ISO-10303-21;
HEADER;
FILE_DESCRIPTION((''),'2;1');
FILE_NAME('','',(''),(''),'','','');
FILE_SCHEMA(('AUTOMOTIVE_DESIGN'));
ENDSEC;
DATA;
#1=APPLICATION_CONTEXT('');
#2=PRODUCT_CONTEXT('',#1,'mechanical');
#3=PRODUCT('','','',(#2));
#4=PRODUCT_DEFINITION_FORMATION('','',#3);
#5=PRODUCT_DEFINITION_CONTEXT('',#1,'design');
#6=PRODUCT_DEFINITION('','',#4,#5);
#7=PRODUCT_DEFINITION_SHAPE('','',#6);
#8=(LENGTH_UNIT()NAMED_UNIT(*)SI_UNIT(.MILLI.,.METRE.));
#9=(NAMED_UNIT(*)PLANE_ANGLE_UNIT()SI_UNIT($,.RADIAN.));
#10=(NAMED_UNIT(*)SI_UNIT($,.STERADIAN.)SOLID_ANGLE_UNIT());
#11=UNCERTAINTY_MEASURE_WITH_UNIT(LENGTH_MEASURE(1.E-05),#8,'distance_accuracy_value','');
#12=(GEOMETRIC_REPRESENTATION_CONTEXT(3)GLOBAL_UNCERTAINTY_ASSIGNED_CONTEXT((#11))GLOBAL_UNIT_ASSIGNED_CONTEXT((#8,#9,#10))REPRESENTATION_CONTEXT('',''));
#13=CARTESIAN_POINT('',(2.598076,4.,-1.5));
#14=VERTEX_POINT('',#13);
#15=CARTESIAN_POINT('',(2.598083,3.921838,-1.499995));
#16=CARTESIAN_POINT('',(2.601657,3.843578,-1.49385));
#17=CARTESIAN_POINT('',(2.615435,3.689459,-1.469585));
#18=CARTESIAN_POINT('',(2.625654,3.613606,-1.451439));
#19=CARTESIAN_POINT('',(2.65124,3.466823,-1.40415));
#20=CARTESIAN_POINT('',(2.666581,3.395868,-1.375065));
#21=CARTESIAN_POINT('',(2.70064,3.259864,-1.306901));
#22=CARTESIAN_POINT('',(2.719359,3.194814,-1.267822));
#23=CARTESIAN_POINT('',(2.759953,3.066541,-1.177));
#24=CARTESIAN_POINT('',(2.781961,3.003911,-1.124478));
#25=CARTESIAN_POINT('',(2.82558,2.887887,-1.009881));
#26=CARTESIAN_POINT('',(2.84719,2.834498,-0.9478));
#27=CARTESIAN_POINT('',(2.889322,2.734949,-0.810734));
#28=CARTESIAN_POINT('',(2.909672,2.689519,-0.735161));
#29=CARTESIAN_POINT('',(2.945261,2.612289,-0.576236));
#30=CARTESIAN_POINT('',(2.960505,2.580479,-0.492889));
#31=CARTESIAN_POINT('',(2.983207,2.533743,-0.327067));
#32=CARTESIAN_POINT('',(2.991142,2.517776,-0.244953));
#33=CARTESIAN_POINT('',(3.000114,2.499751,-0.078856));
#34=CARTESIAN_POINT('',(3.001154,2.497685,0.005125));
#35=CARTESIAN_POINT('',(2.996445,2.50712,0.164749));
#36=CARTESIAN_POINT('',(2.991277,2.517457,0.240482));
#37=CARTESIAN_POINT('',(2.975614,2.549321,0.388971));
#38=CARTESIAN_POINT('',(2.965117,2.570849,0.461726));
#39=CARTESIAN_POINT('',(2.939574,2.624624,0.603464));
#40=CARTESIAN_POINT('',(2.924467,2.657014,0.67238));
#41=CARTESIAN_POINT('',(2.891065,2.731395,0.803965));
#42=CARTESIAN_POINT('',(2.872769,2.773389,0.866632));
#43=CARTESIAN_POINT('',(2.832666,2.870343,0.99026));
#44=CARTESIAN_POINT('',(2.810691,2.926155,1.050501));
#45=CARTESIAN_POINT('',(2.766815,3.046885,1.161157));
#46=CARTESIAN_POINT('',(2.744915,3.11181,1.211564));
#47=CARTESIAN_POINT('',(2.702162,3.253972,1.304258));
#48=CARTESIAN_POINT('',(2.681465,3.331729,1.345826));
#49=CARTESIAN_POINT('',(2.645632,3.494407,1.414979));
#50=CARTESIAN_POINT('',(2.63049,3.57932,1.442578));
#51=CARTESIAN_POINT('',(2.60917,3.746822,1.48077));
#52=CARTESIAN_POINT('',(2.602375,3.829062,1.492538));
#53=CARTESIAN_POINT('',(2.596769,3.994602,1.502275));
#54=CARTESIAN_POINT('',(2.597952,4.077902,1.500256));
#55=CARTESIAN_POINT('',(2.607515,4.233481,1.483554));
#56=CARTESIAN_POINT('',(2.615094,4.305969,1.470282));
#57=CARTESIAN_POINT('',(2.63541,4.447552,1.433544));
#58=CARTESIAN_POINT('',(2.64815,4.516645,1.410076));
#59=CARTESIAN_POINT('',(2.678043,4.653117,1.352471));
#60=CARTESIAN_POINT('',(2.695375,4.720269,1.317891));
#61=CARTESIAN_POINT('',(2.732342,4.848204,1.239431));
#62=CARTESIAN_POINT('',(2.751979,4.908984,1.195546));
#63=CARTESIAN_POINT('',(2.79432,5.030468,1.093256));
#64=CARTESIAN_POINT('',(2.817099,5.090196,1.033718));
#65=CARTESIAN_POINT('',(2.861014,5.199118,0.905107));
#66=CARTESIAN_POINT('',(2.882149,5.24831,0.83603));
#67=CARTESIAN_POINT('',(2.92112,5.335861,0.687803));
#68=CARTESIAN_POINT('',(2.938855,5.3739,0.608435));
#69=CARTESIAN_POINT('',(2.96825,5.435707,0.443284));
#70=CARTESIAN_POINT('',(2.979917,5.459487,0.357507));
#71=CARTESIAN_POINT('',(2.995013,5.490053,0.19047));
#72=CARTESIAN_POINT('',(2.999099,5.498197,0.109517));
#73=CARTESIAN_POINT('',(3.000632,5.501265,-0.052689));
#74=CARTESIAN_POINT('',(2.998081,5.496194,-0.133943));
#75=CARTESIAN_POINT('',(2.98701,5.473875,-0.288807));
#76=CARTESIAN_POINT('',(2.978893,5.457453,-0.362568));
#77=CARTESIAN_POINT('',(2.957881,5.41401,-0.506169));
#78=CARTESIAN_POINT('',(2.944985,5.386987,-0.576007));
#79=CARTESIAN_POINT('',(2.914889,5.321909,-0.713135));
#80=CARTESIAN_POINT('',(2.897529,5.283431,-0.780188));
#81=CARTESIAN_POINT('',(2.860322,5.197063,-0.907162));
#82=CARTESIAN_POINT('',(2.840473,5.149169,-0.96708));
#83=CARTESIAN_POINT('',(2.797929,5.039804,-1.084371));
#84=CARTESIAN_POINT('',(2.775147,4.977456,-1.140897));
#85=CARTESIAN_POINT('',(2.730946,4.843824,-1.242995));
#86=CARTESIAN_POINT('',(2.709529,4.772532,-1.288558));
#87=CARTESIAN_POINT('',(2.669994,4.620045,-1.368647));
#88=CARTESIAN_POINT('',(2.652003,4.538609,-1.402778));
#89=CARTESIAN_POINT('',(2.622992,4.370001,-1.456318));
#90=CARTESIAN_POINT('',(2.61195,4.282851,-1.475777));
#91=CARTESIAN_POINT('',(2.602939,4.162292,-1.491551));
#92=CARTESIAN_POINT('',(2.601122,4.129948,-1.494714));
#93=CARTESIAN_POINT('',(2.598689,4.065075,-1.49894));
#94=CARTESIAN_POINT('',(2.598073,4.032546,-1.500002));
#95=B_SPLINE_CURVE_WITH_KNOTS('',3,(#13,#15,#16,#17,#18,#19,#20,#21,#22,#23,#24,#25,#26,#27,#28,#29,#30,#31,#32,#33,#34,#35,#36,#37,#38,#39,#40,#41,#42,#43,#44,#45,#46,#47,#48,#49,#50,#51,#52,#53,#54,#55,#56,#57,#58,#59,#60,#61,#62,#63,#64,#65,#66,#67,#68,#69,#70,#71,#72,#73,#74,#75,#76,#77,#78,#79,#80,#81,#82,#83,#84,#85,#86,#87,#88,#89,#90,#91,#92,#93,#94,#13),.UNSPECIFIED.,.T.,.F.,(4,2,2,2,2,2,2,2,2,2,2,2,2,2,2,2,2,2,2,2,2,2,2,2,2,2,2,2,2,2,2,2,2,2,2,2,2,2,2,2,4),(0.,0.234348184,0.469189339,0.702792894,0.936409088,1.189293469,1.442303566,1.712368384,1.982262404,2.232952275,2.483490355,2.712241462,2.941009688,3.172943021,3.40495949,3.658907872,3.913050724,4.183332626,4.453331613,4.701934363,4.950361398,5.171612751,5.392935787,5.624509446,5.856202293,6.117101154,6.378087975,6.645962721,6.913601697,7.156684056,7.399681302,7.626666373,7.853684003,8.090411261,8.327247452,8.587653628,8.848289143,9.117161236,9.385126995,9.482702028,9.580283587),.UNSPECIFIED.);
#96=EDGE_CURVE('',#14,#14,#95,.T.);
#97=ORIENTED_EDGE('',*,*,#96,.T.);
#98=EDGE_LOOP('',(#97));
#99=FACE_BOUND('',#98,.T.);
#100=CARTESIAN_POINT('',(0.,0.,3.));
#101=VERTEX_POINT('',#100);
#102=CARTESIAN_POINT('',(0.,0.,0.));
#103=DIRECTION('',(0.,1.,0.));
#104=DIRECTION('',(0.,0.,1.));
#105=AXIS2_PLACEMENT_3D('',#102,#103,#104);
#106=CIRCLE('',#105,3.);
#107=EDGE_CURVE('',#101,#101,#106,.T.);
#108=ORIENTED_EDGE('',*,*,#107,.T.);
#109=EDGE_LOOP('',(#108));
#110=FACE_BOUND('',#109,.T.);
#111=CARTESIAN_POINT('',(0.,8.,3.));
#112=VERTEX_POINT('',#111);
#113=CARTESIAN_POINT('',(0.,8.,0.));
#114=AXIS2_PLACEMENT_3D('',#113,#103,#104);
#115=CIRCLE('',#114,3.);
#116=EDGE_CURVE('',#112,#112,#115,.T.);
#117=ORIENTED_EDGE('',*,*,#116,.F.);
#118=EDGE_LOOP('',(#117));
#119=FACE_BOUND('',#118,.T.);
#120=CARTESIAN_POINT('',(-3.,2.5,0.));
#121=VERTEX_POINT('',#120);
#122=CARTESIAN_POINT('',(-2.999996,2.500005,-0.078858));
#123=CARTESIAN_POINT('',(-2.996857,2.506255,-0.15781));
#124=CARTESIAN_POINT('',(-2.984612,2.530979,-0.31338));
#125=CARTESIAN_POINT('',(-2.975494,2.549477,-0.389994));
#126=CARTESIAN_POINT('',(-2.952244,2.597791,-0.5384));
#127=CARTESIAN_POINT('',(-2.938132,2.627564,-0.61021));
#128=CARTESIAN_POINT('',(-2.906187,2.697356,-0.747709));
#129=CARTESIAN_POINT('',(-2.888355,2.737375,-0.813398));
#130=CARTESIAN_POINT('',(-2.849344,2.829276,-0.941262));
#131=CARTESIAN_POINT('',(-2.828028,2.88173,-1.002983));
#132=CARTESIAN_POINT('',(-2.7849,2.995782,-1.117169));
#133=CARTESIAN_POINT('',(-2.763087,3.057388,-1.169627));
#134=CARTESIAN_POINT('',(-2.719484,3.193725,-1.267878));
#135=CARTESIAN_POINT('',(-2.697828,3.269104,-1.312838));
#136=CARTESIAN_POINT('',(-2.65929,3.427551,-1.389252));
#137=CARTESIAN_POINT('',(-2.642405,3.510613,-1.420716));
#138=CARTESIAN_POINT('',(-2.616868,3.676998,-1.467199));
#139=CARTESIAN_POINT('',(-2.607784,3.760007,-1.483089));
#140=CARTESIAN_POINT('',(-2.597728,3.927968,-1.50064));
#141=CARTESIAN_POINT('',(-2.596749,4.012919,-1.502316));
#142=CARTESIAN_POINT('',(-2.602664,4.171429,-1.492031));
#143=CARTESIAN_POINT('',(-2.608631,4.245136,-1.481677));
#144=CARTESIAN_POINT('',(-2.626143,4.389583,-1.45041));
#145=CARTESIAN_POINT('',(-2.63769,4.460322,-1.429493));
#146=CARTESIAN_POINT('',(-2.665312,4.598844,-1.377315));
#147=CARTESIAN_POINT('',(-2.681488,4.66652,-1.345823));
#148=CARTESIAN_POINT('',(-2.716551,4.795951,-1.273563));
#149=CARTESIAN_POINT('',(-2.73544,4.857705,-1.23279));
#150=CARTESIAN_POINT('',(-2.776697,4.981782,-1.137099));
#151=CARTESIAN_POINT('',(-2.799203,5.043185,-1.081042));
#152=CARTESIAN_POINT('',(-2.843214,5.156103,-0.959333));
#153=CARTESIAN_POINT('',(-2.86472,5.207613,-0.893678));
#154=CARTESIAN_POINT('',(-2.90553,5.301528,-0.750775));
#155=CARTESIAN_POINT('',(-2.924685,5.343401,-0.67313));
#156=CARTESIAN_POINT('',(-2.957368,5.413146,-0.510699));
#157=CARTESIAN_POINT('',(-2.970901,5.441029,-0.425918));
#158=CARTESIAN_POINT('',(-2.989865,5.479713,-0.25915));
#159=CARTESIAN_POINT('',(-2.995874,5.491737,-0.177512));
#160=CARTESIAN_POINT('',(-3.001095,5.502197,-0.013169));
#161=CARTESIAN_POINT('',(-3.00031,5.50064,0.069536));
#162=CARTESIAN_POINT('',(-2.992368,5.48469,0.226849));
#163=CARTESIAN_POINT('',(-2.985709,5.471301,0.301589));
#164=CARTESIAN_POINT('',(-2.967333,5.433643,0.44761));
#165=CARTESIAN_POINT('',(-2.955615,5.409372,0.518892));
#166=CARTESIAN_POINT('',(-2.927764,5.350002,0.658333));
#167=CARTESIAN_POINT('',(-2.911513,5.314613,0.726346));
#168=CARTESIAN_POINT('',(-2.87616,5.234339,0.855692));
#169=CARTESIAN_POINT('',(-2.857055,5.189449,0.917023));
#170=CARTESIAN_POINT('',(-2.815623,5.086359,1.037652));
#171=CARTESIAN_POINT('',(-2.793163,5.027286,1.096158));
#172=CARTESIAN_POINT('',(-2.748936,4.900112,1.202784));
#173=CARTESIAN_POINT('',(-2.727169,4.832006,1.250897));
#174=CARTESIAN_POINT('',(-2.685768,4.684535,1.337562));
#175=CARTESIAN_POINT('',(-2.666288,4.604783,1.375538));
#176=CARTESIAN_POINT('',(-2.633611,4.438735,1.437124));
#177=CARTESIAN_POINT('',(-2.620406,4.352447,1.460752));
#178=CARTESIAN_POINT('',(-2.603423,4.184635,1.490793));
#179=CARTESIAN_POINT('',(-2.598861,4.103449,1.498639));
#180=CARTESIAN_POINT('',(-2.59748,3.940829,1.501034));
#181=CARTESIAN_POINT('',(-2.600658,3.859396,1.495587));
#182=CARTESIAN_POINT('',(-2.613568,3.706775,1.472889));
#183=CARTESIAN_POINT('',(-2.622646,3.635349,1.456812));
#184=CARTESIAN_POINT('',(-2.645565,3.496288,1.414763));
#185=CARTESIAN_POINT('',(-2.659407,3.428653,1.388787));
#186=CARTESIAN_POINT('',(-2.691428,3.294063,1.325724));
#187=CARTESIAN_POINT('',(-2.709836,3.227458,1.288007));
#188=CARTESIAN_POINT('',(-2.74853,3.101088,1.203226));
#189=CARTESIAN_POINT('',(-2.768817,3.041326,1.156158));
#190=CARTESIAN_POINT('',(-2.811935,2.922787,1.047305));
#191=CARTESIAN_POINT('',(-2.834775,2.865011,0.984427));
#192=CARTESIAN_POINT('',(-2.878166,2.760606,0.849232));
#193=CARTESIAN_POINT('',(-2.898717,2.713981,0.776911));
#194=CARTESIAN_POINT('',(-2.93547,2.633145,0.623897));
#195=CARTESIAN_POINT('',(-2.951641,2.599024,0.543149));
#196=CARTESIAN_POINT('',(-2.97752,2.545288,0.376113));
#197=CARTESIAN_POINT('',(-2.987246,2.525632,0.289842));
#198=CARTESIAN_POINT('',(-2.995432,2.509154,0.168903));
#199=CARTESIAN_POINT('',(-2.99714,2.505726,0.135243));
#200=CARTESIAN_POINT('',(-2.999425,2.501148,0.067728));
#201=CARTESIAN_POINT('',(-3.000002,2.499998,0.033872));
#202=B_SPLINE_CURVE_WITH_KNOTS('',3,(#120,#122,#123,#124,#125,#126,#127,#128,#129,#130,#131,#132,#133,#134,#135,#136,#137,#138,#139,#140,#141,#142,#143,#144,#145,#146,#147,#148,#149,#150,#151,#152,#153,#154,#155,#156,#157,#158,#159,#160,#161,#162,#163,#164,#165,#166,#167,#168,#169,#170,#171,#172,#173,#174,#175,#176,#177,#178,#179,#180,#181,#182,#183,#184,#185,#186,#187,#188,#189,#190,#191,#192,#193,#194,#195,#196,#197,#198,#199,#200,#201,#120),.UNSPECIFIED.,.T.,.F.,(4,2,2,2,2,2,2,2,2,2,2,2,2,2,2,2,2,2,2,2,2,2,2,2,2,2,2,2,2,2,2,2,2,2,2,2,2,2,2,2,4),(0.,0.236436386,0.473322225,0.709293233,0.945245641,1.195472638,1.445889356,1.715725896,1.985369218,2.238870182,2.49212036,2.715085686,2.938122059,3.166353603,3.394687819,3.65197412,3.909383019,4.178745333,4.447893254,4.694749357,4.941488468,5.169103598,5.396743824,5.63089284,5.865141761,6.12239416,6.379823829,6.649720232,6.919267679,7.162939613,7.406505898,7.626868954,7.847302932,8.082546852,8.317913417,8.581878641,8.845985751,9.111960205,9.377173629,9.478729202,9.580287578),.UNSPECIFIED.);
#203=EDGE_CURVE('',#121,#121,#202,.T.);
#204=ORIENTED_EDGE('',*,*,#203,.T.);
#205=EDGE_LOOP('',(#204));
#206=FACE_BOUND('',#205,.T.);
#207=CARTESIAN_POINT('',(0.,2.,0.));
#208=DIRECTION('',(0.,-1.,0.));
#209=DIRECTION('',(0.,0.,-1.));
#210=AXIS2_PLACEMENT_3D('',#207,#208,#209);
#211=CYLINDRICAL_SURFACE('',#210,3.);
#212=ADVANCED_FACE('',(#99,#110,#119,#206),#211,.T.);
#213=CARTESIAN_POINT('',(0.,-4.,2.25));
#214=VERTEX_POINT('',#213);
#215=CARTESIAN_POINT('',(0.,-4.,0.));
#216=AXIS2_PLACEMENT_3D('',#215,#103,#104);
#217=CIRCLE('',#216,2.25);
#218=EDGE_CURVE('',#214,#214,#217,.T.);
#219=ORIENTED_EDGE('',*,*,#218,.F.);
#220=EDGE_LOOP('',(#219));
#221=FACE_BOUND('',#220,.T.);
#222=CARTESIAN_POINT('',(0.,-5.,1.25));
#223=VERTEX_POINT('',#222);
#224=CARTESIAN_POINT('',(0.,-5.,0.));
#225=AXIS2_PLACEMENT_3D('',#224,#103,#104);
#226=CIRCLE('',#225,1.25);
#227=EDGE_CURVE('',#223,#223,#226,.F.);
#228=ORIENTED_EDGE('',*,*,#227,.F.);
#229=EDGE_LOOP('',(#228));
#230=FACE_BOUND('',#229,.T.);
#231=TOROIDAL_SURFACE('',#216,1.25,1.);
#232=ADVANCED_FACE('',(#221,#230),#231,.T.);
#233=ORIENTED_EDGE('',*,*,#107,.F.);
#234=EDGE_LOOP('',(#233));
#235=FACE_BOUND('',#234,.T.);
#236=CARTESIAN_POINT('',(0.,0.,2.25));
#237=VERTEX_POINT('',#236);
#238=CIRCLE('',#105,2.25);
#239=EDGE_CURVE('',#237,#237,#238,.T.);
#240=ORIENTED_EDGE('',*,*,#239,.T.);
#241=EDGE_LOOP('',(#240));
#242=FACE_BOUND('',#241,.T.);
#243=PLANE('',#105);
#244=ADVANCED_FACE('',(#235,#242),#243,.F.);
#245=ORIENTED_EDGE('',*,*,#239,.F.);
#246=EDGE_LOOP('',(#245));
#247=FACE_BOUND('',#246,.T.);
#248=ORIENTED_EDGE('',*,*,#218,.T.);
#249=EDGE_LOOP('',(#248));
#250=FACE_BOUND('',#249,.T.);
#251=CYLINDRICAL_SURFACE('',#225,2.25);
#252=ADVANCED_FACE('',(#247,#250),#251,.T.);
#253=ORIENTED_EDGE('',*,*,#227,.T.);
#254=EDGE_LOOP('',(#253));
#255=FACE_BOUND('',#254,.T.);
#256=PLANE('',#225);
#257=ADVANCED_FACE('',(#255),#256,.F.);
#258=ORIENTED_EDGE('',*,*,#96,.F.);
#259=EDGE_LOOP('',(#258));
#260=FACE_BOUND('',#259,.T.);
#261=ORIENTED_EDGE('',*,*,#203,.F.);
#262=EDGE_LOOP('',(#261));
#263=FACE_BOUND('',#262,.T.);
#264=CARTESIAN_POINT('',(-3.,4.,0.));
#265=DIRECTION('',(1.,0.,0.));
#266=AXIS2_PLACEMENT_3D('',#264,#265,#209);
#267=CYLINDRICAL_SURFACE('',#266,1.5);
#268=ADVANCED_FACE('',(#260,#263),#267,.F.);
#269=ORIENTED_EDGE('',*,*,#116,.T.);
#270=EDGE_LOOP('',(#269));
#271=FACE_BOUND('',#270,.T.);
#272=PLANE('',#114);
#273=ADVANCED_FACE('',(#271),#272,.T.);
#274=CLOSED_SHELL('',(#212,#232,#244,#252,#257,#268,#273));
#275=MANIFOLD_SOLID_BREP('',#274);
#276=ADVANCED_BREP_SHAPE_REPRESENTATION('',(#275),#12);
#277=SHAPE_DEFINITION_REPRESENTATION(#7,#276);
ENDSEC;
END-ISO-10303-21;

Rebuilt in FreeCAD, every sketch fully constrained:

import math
import FreeCAD as App
import Part
import Sketcher
from FreeCAD import Vector
Q = App.Units.Quantity


def edges_at(feature, points):
    """Names of the edges that pass closest to the given points."""
    edges = feature.Shape.Edges
    near = lambda p: min(range(len(edges)), key=lambda i: edges[i].distToShape(Part.Vertex(*p))[0])
    return sorted({f"Edge{near(p) + 1}" for p in points})

doc = App.newDocument("Part")
params = doc.addObject("Spreadsheet::Sheet", "Params")
for row, (alias, value) in enumerate([
    ("sketch1_diameter", "6 mm"),
    ("sketch1_radius", "2.25 mm"),
    ("pad1_length", "2 mm"),
    ("sketch2_diameter", "6 mm"),
    ("pad2_length", "8 mm"),
    ("sketch3_diameter", "4.5 mm"),
    ("pad3_length", "5 mm"),
    ("sketch4_diameter", "3 mm"),
    ("fillet_radius", "1 mm"),
], start=1):
    params.set(f"A{row}", alias)
    params.set(f"B{row}", "=" + value)
    params.setAlias(f"B{row}", alias)

body = doc.addObject("PartDesign::Body", "Body")

# Sketch on XZ plane
sketch1 = doc.addObject("Sketcher::SketchObject", "Sketch")
body.addObject(sketch1)
sketch1.AttachmentSupport = (doc.XZ_Plane, [""])
sketch1.MapMode = "FlatFace"
sketch1.addGeometry(Part.Circle(Vector(0, 0, 0), Vector(0, 0, 1), 3), False)
sketch1.addGeometry(Part.LineSegment(Vector(-1.5, 1.7, 0), Vector(-1.5, -1.7, 0)), False)
sketch1.addGeometry(Part.ArcOfCircle(Part.Circle(Vector(0, 0, 0), Vector(0, 0, 1), 2.2), math.radians(-132), math.radians(-48)), False)
sketch1.addGeometry(Part.LineSegment(Vector(1.5, -1.7, 0), Vector(1.5, 1.7, 0)), False)
sketch1.addGeometry(Part.ArcOfCircle(Part.Circle(Vector(0, 0, 0), Vector(0, 0, 1), 2.2), math.radians(48), math.radians(132)), False)
sketch1.addConstraint(Sketcher.Constraint("Coincident", 1, 2, 2, 1))
sketch1.addConstraint(Sketcher.Constraint("Coincident", 2, 2, 3, 1))
sketch1.addConstraint(Sketcher.Constraint("Coincident", 3, 2, 4, 1))
sketch1.addConstraint(Sketcher.Constraint("Coincident", 4, 2, 1, 1))
sketch1.addConstraint(Sketcher.Constraint("Vertical", 1))
sketch1.addConstraint(Sketcher.Constraint("Vertical", 3))
sketch1.addConstraint(Sketcher.Constraint("Coincident", 0, 3, -1, 1))
sketch1.addConstraint(Sketcher.Constraint("Coincident", 2, 3, -1, 1))
sketch1.addConstraint(Sketcher.Constraint("Coincident", 4, 3, -1, 1))
sketch1.addConstraint(Sketcher.Constraint("Equal", 2, 4))
sketch1.addConstraint(Sketcher.Constraint("Horizontal", 1, 2, 2, 2))
sketch1.addConstraint(Sketcher.Constraint("Diameter", 0, Q("6 mm")))
sketch1.addConstraint(Sketcher.Constraint("Radius", 2, Q("2.25 mm")))
sketch1.addConstraint(Sketcher.Constraint("DistanceX", 1, 2, 2, 2, Q("3 mm")))
sketch1.setExpression("Constraints[11]", "Params.sketch1_diameter")
sketch1.setExpression("Constraints[12]", "Params.sketch1_radius")
pad1 = doc.addObject("PartDesign::Pad", "Pad")
body.addObject(pad1)
pad1.Profile = sketch1
pad1.setExpression("Length", "Params.pad1_length")
pad1.Reversed = True

# Sketch on XZ plane
sketch2 = doc.addObject("Sketcher::SketchObject", "Sketch001")
body.addObject(sketch2)
sketch2.AttachmentSupport = (doc.XZ_Plane, [""])
sketch2.MapMode = "FlatFace"
sketch2.addGeometry(Part.Circle(Vector(0, 0, 0), Vector(0, 0, 1), 3), False)
sketch2.addConstraint(Sketcher.Constraint("Coincident", 0, 3, -1, 1))
sketch2.addConstraint(Sketcher.Constraint("Diameter", 0, Q("6 mm")))
sketch2.setExpression("Constraints[1]", "Params.sketch2_diameter")
pad2 = doc.addObject("PartDesign::Pad", "Pad001")
body.addObject(pad2)
pad2.Profile = sketch2
pad2.setExpression("Length", "Params.pad2_length")
pad2.Reversed = True

# Sketch on XZ plane
sketch3 = doc.addObject("Sketcher::SketchObject", "Sketch002")
body.addObject(sketch3)
sketch3.AttachmentSupport = (doc.XZ_Plane, [""])
sketch3.MapMode = "FlatFace"
sketch3.addGeometry(Part.Circle(Vector(0, 0, 0), Vector(0, 0, 1), 2.2), False)
sketch3.addConstraint(Sketcher.Constraint("Coincident", 0, 3, -1, 1))
sketch3.addConstraint(Sketcher.Constraint("Diameter", 0, Q("4.5 mm")))
sketch3.setExpression("Constraints[1]", "Params.sketch3_diameter")
pad3 = doc.addObject("PartDesign::Pad", "Pad002")
body.addObject(pad3)
pad3.Profile = sketch3
pad3.setExpression("Length", "Params.pad3_length")

# Sketch on YZ plane
sketch4 = doc.addObject("Sketcher::SketchObject", "Sketch003")
body.addObject(sketch4)
sketch4.AttachmentSupport = (doc.YZ_Plane, [""])
sketch4.MapMode = "FlatFace"
sketch4.addGeometry(Part.Circle(Vector(4, 0, 0), Vector(0, 0, 1), 1.5), False)
sketch4.addConstraint(Sketcher.Constraint("PointOnObject", 0, 3, -1))
sketch4.addConstraint(Sketcher.Constraint("Diameter", 0, Q("3 mm")))
sketch4.addConstraint(Sketcher.Constraint("DistanceX", -1, 1, 0, 3, Q("4 mm")))
sketch4.setExpression("Constraints[1]", "Params.sketch4_diameter")
pocket1 = doc.addObject("PartDesign::Pocket", "Pocket")
body.addObject(pocket1)
pocket1.Profile = sketch4
pocket1.Type = "ThroughAll"
pocket1.Midplane = True
doc.recompute()

fillet = doc.addObject("PartDesign::Fillet", "Fillet")
body.addObject(fillet)
fillet.Base = (pocket1, edges_at(pocket1, [(-1.5, -5, -1.677)]))
fillet.setExpression("Radius", "Params.fillet_radius")

doc.recompute()
